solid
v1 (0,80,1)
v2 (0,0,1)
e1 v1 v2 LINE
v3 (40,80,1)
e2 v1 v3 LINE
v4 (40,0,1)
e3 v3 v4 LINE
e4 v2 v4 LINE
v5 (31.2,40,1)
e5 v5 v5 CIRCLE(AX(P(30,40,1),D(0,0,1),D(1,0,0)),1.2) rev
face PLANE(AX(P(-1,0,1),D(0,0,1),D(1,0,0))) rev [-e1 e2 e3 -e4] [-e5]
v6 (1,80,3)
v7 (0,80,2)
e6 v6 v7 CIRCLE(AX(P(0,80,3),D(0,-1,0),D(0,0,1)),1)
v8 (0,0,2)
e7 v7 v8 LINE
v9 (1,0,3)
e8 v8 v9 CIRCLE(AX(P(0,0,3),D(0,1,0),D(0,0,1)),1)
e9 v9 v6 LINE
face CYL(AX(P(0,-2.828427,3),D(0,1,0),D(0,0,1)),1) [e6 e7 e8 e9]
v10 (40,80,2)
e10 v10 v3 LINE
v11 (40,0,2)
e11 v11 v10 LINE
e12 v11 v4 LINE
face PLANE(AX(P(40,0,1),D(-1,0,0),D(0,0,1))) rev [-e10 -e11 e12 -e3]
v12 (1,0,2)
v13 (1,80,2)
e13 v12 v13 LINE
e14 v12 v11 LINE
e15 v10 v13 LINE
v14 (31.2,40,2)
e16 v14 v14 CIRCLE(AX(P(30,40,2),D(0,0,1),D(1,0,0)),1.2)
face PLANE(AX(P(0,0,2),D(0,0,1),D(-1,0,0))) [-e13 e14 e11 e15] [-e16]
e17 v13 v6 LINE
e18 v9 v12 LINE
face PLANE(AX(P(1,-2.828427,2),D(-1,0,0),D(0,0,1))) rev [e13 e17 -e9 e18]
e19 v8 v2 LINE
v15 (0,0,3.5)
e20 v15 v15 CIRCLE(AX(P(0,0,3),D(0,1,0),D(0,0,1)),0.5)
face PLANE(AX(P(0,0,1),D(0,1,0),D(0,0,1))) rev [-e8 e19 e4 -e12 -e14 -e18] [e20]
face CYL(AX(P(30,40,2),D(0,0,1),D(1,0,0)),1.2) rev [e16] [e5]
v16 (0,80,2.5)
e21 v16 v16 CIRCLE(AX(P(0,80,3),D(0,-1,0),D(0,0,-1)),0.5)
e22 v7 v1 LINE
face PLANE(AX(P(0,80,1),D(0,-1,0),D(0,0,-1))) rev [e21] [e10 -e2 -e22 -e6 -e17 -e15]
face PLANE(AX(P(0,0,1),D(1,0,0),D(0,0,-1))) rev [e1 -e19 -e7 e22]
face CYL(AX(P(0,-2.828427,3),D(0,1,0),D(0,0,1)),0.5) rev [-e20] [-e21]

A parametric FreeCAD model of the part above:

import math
import FreeCAD as App
import Part
import Sketcher

V = App.Vector
Q = App.Units.Quantity


def add_polygon(sketch, points):
    """Adds a closed chain of lines whose ends are joined by coincident constraints."""
    first, n = sketch.GeometryCount, len(points)
    for a, b in zip(points, points[1:] + points[:1]):
        sketch.addGeometry(Part.LineSegment(App.Vector(*a, 0), App.Vector(*b, 0)), False)
    for i in range(n):
        sketch.addConstraint(Sketcher.Constraint("Coincident", first + i, 2, first + (i + 1) % n, 1))

doc = App.newDocument("Part")
body = doc.addObject("PartDesign::Body", "Body")

sketch1 = body.newObject("Sketcher::SketchObject", "Sketch")
sketch1.AttachmentSupport = (doc.getObject("XY_Plane"), [""])
sketch1.MapMode = "FlatFace"
add_polygon(sketch1, [(0, 80), (0, 0), (40, 0), (40, 80)])
sketch1.addConstraint([
    Sketcher.Constraint("Vertical", 0),
    Sketcher.Constraint("Horizontal", 1),
    Sketcher.Constraint("Vertical", 2),
    Sketcher.Constraint("Horizontal", 3),
    Sketcher.Constraint("Coincident", 0, 2, -1, 1),
    Sketcher.Constraint("DistanceX", 1, 1, 1, 2, Q("40 mm")),
    Sketcher.Constraint("DistanceY", 0, 2, 0, 1, Q("80 mm")),
])
pad1 = body.newObject("PartDesign::Pad", "Pad")
pad1.Profile = sketch1
pad1.Length = 1

sketch2 = body.newObject("Sketcher::SketchObject", "Sketch001")
sketch2.AttachmentSupport = (doc.getObject("XZ_Plane"), [""])
sketch2.MapMode = "FlatFace"
sketch2.AttachmentOffset = App.Placement(V(0, 0, -80), App.Rotation())
sketch2.addGeometry([
    Part.LineSegment(V(1, 0, 0), V(1, -1, 0)),
    Part.ArcOfCircle(Part.Circle(V(0, -1, 0), V(0, 0, 1), 1), math.radians(90), math.radians(360)),
    Part.LineSegment(V(0, 0, 0), V(1, 0, 0)),
    Part.Circle(V(0, -1, 0), V(0, 0, 1), 0.5),
], False)
sketch2.addConstraint([
    Sketcher.Constraint("Tangent", 0, 2, 1, 2),
    Sketcher.Constraint("Tangent", 1, 1, 2, 1),
    Sketcher.Constraint("Coincident", 2, 2, 0, 1),
    Sketcher.Constraint("Vertical", 0),
    Sketcher.Constraint("Horizontal", 2),
    Sketcher.Constraint("Coincident", 1, 1, -1, 1),
    Sketcher.Constraint("Coincident", 3, 3, 1, 3),
    Sketcher.Constraint("Diameter", 3, Q("1 mm")),
    Sketcher.Constraint("Radius", 1, Q("1 mm")),
])
pad2 = body.newObject("PartDesign::Pad", "Pad001")
pad2.Profile = sketch2
pad2.Length = 80
doc.recompute()

datumplane = body.newObject("PartDesign::Plane", "DatumPlane")
datumplane.AttachmentSupport = (doc.getObject("XY_Plane"), [""])
datumplane.MapMode = "FlatFace"
datumplane.AttachmentOffset = App.Placement(V(0, 0, 1), App.Rotation())
mirrored = body.newObject("PartDesign::Mirrored", "Mirrored")
mirrored.Originals = [pad1, pad2]
mirrored.MirrorPlane = (datumplane, [""])
body.Tip = mirrored

sketch3 = body.newObject("Sketcher::SketchObject", "Sketch002")
sketch3.AttachmentSupport = (doc.getObject("YZ_Plane"), [""])
sketch3.MapMode = "FlatFace"
sketch3.AttachmentOffset = App.Placement(V(0, 0, 40), App.Rotation())
add_polygon(sketch3, [(80, 1), (0, 1), (0, -2), (80, -2)])
sketch3.addConstraint([
    Sketcher.Constraint("Horizontal", 0),
    Sketcher.Constraint("Vertical", 1),
    Sketcher.Constraint("Horizontal", 2),
    Sketcher.Constraint("Vertical", 3),
    Sketcher.Constraint("PointOnObject", 0, 2, -2),
    Sketcher.Constraint("DistanceX", 0, 2, 0, 1, Q("80 mm")),
    Sketcher.Constraint("DistanceY", 1, 2, 1, 1, Q("3 mm")),
    Sketcher.Constraint("DistanceY", -1, 1, 0, 2, Q("1 mm")),
])
pocket1 = body.newObject("PartDesign::Pocket", "Pocket")
pocket1.Profile = sketch3
pocket1.Type = "ThroughAll"

sketch4 = body.newObject("Sketcher::SketchObject", "Sketch003")
sketch4.AttachmentSupport = (doc.getObject("XY_Plane"), [""])
sketch4.MapMode = "FlatFace"
sketch4.AttachmentOffset = App.Placement(V(0, 0, 2), App.Rotation())
sketch4.addGeometry(Part.Circle(V(30, 40, 0), V(0, 0, 1), 1.2), False)
sketch4.addConstraint([
    Sketcher.Constraint("Diameter", 0, Q("2.4 mm")),
    Sketcher.Constraint("DistanceX", -1, 1, 0, 3, Q("30 mm")),
    Sketcher.Constraint("DistanceY", -1, 1, 0, 3, Q("40 mm")),
])
doc.recompute()
hole = body.newObject("PartDesign::Hole", "Hole")
hole.Profile = sketch4
hole.ThreadType = "None"
hole.Diameter = 2.4
hole.DepthType = "ThroughAll"

doc.recompute()
